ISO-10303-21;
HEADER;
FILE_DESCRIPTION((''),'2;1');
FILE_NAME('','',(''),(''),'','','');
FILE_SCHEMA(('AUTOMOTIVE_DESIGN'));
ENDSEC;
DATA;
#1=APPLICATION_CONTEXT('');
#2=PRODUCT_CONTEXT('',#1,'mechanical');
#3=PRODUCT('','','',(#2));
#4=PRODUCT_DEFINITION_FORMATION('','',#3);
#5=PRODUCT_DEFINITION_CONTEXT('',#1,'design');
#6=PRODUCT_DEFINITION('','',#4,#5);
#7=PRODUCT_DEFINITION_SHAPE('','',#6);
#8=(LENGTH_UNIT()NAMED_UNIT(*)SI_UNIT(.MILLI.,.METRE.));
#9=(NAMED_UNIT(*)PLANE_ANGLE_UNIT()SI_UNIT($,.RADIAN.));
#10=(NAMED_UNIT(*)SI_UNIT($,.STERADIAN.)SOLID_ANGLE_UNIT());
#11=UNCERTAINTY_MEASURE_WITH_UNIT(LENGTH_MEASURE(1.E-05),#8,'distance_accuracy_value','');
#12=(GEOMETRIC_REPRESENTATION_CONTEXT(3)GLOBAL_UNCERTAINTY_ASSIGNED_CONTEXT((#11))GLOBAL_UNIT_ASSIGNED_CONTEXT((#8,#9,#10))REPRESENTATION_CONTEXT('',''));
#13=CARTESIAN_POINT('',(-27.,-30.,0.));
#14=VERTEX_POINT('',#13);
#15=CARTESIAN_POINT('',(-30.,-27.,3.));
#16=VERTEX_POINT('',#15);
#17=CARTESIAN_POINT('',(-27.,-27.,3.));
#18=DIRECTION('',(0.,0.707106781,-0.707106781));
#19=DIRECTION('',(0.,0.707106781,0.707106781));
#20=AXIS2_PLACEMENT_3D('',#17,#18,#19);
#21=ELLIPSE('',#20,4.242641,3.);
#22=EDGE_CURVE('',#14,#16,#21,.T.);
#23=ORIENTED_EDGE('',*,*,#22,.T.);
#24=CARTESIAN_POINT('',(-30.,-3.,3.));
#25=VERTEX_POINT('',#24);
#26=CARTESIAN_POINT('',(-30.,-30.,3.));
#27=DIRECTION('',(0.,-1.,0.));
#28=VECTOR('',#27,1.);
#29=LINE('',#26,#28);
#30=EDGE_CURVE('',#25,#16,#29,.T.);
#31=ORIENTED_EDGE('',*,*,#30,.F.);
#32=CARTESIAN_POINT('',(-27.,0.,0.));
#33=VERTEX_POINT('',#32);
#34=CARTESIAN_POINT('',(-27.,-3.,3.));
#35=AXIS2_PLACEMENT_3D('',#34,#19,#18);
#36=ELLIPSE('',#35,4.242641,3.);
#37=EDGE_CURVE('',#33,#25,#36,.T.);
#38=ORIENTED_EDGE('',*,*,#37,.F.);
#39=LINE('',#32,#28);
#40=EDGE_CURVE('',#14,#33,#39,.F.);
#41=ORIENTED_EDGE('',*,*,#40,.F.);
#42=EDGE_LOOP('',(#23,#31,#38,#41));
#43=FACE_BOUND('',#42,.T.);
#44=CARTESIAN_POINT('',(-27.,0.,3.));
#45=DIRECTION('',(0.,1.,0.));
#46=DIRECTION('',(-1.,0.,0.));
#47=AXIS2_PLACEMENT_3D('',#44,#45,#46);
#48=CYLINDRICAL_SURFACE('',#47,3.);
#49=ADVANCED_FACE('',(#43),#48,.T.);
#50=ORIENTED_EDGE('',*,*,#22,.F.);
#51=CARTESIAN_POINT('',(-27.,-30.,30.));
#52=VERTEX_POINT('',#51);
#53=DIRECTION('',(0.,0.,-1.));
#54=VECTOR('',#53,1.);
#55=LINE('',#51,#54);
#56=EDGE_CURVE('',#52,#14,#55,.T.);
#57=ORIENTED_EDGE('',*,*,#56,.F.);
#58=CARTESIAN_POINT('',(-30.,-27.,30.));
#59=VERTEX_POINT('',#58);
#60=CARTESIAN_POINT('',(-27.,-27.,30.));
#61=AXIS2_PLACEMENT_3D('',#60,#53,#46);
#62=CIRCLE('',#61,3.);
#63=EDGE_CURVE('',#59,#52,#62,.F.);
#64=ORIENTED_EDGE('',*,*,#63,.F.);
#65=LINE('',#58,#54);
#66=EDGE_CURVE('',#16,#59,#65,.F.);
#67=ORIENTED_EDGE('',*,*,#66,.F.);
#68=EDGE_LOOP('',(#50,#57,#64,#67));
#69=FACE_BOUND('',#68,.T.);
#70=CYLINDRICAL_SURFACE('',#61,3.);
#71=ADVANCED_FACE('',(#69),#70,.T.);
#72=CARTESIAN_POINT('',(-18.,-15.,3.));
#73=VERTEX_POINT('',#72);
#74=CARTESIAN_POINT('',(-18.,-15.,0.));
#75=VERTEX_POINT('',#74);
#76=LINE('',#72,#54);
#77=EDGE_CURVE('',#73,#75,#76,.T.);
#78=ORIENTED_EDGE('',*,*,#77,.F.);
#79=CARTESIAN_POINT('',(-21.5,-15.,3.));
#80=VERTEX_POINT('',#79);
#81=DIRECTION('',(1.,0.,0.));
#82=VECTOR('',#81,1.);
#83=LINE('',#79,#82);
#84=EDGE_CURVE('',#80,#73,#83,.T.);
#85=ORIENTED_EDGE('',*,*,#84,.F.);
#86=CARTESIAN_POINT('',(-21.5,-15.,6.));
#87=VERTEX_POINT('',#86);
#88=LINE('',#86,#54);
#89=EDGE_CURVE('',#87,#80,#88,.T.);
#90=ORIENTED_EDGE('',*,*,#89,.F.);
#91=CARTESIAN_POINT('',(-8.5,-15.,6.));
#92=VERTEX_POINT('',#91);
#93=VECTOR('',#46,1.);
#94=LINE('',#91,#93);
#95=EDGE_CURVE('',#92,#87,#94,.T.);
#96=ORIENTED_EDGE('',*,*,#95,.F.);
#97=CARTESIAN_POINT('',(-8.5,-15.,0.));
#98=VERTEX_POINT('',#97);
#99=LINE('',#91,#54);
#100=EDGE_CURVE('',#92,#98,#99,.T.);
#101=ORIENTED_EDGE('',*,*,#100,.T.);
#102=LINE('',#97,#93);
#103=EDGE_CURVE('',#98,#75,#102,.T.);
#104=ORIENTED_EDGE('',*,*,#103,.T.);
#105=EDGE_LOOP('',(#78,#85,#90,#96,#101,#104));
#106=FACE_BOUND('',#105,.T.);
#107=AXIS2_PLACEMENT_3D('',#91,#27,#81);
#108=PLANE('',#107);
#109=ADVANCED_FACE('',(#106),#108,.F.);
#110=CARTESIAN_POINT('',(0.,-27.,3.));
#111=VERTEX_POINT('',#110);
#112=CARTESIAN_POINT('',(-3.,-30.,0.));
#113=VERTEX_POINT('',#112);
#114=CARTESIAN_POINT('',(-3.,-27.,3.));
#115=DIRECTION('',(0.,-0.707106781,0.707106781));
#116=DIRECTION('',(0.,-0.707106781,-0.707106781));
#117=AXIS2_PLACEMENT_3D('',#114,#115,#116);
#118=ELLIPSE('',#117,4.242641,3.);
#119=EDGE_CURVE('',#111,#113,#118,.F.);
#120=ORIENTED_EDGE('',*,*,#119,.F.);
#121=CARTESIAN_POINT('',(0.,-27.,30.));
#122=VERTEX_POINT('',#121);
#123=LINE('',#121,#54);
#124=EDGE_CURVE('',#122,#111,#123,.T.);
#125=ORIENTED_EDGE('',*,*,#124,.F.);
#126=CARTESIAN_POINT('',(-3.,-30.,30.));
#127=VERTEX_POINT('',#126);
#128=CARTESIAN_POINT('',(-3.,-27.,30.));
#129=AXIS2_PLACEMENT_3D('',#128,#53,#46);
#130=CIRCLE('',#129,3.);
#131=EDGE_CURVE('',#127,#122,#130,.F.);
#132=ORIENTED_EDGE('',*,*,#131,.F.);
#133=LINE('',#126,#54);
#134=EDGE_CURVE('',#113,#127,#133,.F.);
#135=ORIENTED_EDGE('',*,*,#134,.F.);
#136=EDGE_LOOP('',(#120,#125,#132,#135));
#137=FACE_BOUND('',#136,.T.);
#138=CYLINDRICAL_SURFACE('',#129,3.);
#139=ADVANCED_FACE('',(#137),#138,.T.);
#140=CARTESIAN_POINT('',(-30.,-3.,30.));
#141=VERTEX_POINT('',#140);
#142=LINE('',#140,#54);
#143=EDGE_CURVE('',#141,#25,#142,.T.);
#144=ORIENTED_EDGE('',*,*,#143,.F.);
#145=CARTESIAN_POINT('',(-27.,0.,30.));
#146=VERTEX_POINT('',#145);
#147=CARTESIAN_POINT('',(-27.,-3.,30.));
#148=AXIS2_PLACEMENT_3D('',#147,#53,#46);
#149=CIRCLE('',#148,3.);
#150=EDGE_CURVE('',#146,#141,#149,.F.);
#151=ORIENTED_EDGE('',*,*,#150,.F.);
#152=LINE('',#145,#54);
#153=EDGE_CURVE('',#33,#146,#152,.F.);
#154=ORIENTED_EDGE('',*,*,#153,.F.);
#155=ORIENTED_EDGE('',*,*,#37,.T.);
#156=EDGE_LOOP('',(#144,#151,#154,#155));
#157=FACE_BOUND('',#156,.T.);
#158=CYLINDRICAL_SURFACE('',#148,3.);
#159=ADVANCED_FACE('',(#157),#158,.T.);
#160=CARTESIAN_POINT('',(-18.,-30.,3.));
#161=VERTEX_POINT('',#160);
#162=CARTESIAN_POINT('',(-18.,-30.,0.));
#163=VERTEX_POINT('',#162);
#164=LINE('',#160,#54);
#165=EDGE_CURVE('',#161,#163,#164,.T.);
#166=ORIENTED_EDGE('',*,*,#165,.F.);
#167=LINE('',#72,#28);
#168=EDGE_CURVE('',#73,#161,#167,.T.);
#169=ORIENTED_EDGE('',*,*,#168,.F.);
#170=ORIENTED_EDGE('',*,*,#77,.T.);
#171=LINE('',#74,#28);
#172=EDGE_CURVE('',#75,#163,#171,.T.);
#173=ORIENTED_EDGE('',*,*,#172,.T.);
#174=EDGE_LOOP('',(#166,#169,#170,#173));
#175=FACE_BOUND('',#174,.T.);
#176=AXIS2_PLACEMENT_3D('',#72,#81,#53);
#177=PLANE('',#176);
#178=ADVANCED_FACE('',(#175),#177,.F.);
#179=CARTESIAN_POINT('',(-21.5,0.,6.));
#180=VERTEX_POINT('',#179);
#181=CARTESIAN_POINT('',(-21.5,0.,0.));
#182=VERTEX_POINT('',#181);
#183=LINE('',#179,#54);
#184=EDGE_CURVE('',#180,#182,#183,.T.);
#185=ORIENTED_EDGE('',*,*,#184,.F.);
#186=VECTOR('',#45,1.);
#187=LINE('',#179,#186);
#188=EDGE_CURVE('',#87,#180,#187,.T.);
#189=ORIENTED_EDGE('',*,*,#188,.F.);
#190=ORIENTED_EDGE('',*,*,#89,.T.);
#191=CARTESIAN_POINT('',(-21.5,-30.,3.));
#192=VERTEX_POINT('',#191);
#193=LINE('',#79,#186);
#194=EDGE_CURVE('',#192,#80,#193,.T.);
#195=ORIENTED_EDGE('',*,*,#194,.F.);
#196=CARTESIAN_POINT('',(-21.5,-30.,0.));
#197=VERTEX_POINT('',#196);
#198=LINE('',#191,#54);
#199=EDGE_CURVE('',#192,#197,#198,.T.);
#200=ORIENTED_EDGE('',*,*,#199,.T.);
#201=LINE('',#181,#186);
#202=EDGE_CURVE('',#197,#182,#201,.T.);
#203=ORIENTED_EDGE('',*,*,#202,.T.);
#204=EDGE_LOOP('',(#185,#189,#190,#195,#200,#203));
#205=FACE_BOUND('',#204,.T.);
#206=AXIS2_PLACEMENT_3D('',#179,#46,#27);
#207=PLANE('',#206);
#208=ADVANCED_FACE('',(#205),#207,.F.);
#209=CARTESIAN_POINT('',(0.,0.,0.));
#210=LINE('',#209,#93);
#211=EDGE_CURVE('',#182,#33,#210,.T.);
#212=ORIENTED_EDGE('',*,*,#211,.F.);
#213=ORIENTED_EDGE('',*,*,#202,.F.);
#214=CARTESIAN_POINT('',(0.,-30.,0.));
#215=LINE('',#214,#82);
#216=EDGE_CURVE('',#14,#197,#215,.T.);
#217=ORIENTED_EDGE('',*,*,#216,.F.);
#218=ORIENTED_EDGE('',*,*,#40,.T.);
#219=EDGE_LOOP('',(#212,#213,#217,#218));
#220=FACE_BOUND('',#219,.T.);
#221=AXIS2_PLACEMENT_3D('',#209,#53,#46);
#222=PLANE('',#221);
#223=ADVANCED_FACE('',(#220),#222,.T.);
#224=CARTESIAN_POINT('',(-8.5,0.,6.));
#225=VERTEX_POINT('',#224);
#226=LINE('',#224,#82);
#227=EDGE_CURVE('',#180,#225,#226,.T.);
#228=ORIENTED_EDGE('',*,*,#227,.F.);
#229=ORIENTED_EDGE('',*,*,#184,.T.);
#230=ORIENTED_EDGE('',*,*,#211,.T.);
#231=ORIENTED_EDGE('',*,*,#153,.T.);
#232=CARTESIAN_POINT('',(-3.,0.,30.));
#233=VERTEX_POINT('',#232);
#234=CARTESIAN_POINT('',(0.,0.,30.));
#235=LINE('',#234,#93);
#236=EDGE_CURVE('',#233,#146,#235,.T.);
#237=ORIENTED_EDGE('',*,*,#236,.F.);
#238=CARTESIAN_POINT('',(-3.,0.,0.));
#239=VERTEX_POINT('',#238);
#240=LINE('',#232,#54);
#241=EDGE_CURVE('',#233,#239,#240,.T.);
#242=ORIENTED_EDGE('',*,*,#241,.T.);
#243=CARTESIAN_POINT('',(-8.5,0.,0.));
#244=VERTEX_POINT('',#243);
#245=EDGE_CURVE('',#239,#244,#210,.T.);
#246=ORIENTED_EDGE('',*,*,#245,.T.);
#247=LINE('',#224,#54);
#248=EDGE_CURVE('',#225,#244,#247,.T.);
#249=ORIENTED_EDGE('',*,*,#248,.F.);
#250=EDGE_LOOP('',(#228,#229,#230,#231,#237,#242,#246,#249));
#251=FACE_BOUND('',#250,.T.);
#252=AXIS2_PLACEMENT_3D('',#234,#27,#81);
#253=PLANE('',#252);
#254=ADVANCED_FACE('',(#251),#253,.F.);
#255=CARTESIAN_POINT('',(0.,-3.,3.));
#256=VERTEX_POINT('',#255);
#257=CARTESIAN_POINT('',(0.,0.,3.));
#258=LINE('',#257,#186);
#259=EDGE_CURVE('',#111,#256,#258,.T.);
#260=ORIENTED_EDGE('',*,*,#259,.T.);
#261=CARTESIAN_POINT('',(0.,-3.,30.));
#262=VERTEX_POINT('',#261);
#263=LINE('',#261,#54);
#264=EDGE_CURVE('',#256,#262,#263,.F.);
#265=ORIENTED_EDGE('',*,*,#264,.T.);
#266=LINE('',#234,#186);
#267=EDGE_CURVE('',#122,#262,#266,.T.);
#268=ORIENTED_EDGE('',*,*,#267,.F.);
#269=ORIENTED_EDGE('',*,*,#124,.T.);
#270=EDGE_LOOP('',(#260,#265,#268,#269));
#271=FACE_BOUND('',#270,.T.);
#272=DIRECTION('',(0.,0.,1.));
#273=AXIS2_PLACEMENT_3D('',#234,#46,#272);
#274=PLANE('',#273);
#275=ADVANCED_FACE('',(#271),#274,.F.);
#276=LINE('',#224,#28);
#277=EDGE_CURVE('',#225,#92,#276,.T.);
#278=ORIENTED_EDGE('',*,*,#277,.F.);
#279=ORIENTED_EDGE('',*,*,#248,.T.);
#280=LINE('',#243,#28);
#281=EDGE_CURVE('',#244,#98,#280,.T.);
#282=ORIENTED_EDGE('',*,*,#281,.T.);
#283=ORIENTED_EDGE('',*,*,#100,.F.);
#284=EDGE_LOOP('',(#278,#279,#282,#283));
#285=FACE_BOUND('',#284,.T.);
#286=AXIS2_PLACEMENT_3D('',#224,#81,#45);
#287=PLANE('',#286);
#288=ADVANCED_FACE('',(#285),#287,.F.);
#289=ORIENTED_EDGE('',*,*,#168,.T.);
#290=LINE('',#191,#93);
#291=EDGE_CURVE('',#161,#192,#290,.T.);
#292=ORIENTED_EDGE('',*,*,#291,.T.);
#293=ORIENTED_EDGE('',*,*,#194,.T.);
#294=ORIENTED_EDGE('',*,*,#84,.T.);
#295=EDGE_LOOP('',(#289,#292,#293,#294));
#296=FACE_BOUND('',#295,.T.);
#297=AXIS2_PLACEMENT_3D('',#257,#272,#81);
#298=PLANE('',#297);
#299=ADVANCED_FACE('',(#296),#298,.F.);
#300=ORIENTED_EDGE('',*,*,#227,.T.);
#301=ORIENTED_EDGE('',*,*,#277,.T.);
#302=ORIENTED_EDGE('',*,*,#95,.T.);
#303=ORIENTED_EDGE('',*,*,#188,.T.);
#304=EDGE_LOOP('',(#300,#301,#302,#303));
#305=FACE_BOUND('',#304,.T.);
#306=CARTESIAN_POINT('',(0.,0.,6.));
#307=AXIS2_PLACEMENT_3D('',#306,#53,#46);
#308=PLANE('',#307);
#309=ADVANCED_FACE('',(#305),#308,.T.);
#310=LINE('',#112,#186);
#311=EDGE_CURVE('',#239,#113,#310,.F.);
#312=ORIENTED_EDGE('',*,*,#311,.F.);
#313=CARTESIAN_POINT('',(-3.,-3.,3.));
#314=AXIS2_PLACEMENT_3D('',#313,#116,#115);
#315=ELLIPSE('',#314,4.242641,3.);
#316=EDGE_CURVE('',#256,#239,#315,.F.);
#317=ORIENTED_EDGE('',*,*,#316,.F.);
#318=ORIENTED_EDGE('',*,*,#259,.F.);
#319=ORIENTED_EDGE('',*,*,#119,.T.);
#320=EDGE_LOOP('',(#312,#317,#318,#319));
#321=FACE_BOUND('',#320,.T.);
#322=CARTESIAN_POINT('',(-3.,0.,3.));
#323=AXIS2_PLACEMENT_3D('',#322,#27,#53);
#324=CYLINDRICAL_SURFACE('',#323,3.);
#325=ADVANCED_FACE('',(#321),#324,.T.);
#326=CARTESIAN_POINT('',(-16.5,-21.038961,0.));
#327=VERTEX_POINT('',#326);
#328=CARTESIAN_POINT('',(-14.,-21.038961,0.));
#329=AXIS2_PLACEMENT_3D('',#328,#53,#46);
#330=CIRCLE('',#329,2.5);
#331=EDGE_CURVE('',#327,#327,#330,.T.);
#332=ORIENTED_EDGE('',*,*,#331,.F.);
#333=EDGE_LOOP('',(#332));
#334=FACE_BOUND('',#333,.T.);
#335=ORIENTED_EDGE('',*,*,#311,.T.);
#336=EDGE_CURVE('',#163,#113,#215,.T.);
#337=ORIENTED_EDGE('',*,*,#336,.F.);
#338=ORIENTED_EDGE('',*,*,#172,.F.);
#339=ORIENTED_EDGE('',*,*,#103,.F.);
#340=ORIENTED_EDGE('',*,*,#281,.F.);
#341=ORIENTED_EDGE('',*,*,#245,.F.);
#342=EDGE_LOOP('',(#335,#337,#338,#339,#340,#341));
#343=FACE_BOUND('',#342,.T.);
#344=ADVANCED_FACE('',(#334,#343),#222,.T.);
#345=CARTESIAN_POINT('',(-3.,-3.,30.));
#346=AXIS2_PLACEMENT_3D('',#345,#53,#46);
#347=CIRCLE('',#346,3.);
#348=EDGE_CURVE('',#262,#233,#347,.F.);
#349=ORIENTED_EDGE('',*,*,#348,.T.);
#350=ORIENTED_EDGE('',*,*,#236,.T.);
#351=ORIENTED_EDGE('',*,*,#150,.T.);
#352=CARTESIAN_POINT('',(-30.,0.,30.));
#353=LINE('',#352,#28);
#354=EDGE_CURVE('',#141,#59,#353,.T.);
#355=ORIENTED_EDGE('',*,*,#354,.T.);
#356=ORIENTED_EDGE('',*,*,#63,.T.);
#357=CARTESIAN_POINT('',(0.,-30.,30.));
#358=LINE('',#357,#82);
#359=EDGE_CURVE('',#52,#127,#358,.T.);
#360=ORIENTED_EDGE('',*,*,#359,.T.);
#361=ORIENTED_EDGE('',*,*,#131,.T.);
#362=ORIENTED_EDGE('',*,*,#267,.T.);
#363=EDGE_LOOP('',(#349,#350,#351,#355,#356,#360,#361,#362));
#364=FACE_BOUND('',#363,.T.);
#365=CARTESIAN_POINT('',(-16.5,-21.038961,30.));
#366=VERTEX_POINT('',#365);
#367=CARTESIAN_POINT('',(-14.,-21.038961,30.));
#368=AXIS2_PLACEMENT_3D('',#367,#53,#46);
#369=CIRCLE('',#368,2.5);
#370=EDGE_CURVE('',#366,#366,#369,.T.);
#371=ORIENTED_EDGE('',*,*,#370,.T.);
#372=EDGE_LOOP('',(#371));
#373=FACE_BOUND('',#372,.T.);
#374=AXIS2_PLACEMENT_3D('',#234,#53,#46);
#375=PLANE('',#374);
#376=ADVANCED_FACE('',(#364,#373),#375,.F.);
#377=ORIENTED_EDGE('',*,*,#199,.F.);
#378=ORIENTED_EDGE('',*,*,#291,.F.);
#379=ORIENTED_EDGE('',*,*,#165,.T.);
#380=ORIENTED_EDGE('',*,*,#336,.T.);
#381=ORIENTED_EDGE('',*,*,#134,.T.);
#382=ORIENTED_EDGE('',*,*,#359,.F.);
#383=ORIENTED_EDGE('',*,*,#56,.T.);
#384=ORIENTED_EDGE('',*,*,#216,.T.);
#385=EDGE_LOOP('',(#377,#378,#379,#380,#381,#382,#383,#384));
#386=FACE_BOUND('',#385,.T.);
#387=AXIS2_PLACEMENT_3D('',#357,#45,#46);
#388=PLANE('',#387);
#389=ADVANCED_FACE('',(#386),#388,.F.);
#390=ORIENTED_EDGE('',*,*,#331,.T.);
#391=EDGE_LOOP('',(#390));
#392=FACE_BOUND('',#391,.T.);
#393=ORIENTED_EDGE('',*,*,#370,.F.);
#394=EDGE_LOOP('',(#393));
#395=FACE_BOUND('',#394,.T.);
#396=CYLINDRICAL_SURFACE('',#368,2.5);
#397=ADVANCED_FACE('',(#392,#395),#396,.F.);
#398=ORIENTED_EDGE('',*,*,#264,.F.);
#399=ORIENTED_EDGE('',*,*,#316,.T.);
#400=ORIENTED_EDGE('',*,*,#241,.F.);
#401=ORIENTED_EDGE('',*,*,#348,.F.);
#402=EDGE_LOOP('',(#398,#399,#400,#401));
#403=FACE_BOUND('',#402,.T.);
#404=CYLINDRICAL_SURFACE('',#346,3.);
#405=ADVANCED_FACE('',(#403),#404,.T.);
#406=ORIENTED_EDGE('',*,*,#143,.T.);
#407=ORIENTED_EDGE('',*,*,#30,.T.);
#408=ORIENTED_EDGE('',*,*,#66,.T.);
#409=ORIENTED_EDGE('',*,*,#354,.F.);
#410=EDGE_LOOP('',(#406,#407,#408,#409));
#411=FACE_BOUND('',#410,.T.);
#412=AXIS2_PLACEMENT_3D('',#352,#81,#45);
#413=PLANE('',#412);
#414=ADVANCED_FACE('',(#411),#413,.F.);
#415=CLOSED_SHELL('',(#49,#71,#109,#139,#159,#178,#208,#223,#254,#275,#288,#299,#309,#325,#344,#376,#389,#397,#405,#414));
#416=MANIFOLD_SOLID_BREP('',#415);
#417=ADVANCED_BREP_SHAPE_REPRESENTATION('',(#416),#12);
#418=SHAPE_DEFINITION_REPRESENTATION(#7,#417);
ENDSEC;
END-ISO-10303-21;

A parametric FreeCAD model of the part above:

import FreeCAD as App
import Part
import Sketcher

V = App.Vector
Q = App.Units.Quantity


def edges_at(feature, points):
    """Names of the edges that pass closest to the given points."""
    edges = feature.Shape.Edges
    near = lambda p: min(range(len(edges)), key=lambda i: edges[i].distToShape(Part.Vertex(*p))[0])
    return sorted({f"Edge{near(p) + 1}" for p in points})


def add_polygon(sketch, points):
    """Adds a closed chain of lines whose ends are joined by coincident constraints."""
    first, n = sketch.GeometryCount, len(points)
    for a, b in zip(points, points[1:] + points[:1]):
        sketch.addGeometry(Part.LineSegment(App.Vector(*a, 0), App.Vector(*b, 0)), False)
    for i in range(n):
        sketch.addConstraint(Sketcher.Constraint("Coincident", first + i, 2, first + (i + 1) % n, 1))

doc = App.newDocument("Part")
body = doc.addObject("PartDesign::Body", "Body")

# Sketch on XY plane
sketch1 = doc.addObject("Sketcher::SketchObject", "Sketch")
body.addObject(sketch1)
sketch1.AttachmentSupport = (doc.XY_Plane, [""])
sketch1.MapMode = "FlatFace"
add_polygon(sketch1, [(-30, 0), (-30, -30), (0, -30), (0, 0)])  # lines 0-3
sketch1.addConstraint(Sketcher.Constraint("Vertical", 0))
sketch1.addConstraint(Sketcher.Constraint("Horizontal", 1))
sketch1.addConstraint(Sketcher.Constraint("Vertical", 2))
sketch1.addConstraint(Sketcher.Constraint("Horizontal", 3))
sketch1.addConstraint(Sketcher.Constraint("Coincident", 2, 2, -1, 1))
sketch1.addConstraint(Sketcher.Constraint("Equal", 3, 0))
sketch1.addConstraint(Sketcher.Constraint("DistanceX", 1, 1, 1, 2, Q("30 mm")))
pad1 = doc.addObject("PartDesign::Pad", "Pad")
body.addObject(pad1)
pad1.Profile = sketch1
pad1.Length = 30

# Sketch on XY plane
sketch2 = doc.addObject("Sketcher::SketchObject", "Sketch001")
body.addObject(sketch2)
sketch2.AttachmentSupport = (doc.XY_Plane, [""])
sketch2.MapMode = "FlatFace"
add_polygon(sketch2, [(-8, 0), (-8, -15), (-22, -15), (-22, 0)])  # lines 0-3
sketch2.addConstraint(Sketcher.Constraint("Vertical", 0))
sketch2.addConstraint(Sketcher.Constraint("Horizontal", 1))
sketch2.addConstraint(Sketcher.Constraint("Vertical", 2))
sketch2.addConstraint(Sketcher.Constraint("Horizontal", 3))
sketch2.addConstraint(Sketcher.Constraint("PointOnObject", 2, 2, -1))
sketch2.addConstraint(Sketcher.Constraint("DistanceX", 1, 2, 1, 1, Q("13 mm")))
sketch2.addConstraint(Sketcher.Constraint("DistanceY", 0, 2, 0, 1, Q("15 mm")))
sketch2.addConstraint(Sketcher.Constraint("DistanceX", 0, 2, -1, 1, Q("8.5 mm")))
pocket1 = doc.addObject("PartDesign::Pocket", "Pocket")
body.addObject(pocket1)
pocket1.Profile = sketch2
pocket1.Length = 6
pocket1.Reversed = True

# Sketch on XY plane
sketch3 = doc.addObject("Sketcher::SketchObject", "Sketch002")
body.addObject(sketch3)
sketch3.AttachmentSupport = (doc.XY_Plane, [""])
sketch3.MapMode = "FlatFace"
add_polygon(sketch3, [(-18, -15), (-18, -30), (-21.5, -30), (-21.5, -15)])  # lines 0-3
sketch3.addConstraint(Sketcher.Constraint("Vertical", 0))
sketch3.addConstraint(Sketcher.Constraint("Horizontal", 1))
sketch3.addConstraint(Sketcher.Constraint("Vertical", 2))
sketch3.addConstraint(Sketcher.Constraint("Horizontal", 3))
sketch3.addConstraint(Sketcher.Constraint("DistanceY", 0, 2, 0, 1, Q("15 mm")))
sketch3.addConstraint(Sketcher.Constraint("DistanceX", 1, 2, 1, 1, Q("3.5 mm")))
sketch3.addConstraint(Sketcher.Constraint("DistanceX", 0, 2, -1, 1, Q("18 mm")))
sketch3.addConstraint(Sketcher.Constraint("DistanceY", 0, 2, -1, 1, Q("30 mm")))
pocket2 = doc.addObject("PartDesign::Pocket", "Pocket001")
body.addObject(pocket2)
pocket2.Profile = sketch3
pocket2.Length = 3
pocket2.Reversed = True

# Sketch on XY plane
sketch4 = doc.addObject("Sketcher::SketchObject", "Sketch003")
body.addObject(sketch4)
sketch4.AttachmentSupport = (doc.XY_Plane, [""])
sketch4.MapMode = "FlatFace"
sketch4.addGeometry(Part.Circle(V(-14, -21, 0), V(0, 0, 1), 2.5), False)
sketch4.addConstraint(Sketcher.Constraint("Diameter", 0, Q("5 mm")))
sketch4.addConstraint(Sketcher.Constraint("DistanceX", 0, 3, -1, 1, Q("14 mm")))
sketch4.addConstraint(Sketcher.Constraint("DistanceY", 0, 3, -1, 1, Q("21.038961 mm")))
pocket3 = doc.addObject("PartDesign::Pocket", "Pocket002")
body.addObject(pocket3)
pocket3.Profile = sketch4
pocket3.Type = "ThroughAll"
pocket3.Reversed = True
doc.recompute()

fillet = doc.addObject("PartDesign::Fillet", "Fillet")
body.addObject(fillet)
fillet.Base = (pocket3, edges_at(pocket3, [
    (-30, -15, 0),
    (0, -15, 0),
    (0, -30, 15),
    (-30, -30, 15),
    (-30, 0, 15),
    (0, 0, 15),
]))
fillet.Radius = 3

doc.recompute()
